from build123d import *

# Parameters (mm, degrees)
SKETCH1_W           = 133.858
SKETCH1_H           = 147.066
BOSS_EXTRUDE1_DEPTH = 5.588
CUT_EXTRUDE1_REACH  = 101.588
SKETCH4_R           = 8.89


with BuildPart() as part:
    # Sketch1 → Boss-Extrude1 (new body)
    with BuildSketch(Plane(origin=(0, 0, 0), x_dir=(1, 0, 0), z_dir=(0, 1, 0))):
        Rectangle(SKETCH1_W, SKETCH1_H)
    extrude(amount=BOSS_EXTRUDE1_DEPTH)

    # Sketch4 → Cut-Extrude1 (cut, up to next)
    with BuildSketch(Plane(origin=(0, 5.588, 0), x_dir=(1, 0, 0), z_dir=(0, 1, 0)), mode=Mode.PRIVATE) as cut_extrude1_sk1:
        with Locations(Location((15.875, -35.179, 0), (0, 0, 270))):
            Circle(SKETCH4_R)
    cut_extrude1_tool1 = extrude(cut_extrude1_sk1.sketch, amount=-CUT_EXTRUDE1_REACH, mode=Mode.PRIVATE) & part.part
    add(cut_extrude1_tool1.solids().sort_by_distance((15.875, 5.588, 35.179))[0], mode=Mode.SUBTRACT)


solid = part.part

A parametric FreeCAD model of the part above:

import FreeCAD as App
import Part
import Sketcher
from FreeCAD import Vector
Q = App.Units.Quantity


def add_polygon(sketch, points):
    """Adds a closed chain of lines whose ends are joined by coincident constraints."""
    first, n = sketch.GeometryCount, len(points)
    for a, b in zip(points, points[1:] + points[:1]):
        sketch.addGeometry(Part.LineSegment(App.Vector(*a, 0), App.Vector(*b, 0)), False)
    for i in range(n):
        sketch.addConstraint(Sketcher.Constraint("Coincident", first + i, 2, first + (i + 1) % n, 1))

doc = App.newDocument("Part")
body = doc.addObject("PartDesign::Body", "Body")

# Sketch on XZ plane
sketch1 = body.newObject("Sketcher::SketchObject", "Sketch")
sketch1.AttachmentSupport = (doc.getObject("XZ_Plane"), [""])
sketch1.MapMode = "FlatFace"
add_polygon(sketch1, [(-66.929, -73.533), (-66.929, 73.533), (66.929, 73.533), (66.929, -73.533)])  # lines 0-3
sketch1.addConstraint(Sketcher.Constraint("Vertical", 0))
sketch1.addConstraint(Sketcher.Constraint("Horizontal", 1))
sketch1.addConstraint(Sketcher.Constraint("Vertical", 2))
sketch1.addConstraint(Sketcher.Constraint("Horizontal", 3))
sketch1.addConstraint(Sketcher.Constraint("Symmetric", 0, 2, 2, 2, -1, 1))
sketch1.addConstraint(Sketcher.Constraint("DistanceX", 1, 1, 1, 2, Q("5.27 in")))
sketch1.addConstraint(Sketcher.Constraint("DistanceY", 0, 1, 0, 2, Q("5.79 in")))
pad1 = body.newObject("PartDesign::Pad", "Pad")
pad1.Profile = sketch1
pad1.Length = Q("0.22 in")
pad1.Reversed = True

# Sketch on XZ plane
sketch2 = body.newObject("Sketcher::SketchObject", "Sketch001")
sketch2.AttachmentSupport = (doc.getObject("XZ_Plane"), [""])
sketch2.MapMode = "FlatFace"
sketch2.AttachmentOffset = App.Placement(Vector(0, 0, -0.22 * 25.4), App.Rotation())
sketch2.addGeometry(Part.Circle(Vector(15.875, 35.179, 0), Vector(0, 0, 1), 8.89), False)
sketch2.addConstraint(Sketcher.Constraint("Diameter", 0, Q("0.7 in")))
sketch2.addConstraint(Sketcher.Constraint("DistanceX", -1, 1, 0, 3, Q("0.625 in")))
sketch2.addConstraint(Sketcher.Constraint("DistanceY", -1, 1, 0, 3, Q("1.385 in")))
pocket1 = body.newObject("PartDesign::Pocket", "Pocket")
pocket1.Profile = sketch2
pocket1.Type = "UpToFirst"
pocket1.Reversed = True

doc.recompute()
